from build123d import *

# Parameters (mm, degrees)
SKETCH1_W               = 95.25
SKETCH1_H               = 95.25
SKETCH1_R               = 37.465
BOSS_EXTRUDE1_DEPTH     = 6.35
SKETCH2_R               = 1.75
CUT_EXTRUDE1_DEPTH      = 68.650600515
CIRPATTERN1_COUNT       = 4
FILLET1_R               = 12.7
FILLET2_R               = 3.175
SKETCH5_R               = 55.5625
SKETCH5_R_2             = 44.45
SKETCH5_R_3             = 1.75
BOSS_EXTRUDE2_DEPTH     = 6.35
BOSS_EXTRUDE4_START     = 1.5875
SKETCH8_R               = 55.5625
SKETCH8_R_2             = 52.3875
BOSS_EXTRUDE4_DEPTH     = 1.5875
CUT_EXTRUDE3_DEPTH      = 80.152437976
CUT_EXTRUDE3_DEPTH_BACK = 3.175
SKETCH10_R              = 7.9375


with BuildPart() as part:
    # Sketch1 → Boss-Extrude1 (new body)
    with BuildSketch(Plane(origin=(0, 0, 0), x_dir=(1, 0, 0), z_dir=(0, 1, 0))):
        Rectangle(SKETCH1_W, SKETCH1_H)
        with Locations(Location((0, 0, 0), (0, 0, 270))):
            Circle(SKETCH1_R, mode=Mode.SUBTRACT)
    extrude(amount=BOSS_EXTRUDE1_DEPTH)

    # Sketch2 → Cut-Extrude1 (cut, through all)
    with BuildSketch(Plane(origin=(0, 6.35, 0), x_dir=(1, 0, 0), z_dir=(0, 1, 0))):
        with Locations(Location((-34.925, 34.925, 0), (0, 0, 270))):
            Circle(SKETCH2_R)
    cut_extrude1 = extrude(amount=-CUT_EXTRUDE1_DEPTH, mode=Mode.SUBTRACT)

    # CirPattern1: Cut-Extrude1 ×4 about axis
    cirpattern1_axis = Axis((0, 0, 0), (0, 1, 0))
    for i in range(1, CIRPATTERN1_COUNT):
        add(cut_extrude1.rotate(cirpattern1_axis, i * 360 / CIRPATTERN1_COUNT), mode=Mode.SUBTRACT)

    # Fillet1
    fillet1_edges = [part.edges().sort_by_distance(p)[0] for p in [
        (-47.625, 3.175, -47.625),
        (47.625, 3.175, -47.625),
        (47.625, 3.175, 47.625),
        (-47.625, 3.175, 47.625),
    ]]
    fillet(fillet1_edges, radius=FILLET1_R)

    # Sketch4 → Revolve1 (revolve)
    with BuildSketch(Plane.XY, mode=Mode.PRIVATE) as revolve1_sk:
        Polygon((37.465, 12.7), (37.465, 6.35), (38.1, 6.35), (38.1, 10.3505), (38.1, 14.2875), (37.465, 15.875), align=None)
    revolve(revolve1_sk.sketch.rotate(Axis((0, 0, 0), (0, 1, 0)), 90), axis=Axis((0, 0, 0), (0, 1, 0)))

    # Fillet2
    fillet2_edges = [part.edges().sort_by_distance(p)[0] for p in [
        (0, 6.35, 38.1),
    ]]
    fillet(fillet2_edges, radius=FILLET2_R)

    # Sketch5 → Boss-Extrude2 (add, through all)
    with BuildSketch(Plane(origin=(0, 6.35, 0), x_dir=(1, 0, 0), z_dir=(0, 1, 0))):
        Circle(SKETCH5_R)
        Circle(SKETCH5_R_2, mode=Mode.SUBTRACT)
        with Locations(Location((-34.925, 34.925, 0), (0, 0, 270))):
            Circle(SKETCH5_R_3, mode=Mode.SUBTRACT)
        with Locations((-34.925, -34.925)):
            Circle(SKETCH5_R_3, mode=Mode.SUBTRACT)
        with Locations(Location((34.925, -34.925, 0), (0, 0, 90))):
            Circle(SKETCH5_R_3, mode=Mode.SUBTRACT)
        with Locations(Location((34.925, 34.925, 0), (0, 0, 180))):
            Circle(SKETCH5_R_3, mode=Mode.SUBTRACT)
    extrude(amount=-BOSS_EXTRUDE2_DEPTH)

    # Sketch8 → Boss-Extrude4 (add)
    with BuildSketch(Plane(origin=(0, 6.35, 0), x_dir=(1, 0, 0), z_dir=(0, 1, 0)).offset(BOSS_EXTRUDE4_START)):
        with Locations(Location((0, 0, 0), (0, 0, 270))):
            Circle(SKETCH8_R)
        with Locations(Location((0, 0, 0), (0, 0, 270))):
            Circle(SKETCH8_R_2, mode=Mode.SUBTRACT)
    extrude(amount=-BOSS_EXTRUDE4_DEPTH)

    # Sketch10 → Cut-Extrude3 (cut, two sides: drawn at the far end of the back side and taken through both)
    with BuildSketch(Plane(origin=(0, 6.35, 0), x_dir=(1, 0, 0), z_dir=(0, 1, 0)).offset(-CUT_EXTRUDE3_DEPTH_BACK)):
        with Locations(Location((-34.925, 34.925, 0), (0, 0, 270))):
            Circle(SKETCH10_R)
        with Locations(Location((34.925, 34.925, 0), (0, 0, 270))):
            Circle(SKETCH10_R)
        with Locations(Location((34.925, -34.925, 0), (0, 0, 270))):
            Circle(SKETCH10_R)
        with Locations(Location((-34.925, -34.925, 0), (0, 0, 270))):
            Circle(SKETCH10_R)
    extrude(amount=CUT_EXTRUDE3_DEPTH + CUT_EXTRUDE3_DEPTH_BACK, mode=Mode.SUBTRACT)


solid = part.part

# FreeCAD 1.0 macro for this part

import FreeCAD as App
import Part
import Sketcher

V = App.Vector
Q = App.Units.Quantity


def edges_at(feature, points):
    """Names of the edges that pass closest to the given points."""
    edges = feature.Shape.Edges
    near = lambda p: min(range(len(edges)), key=lambda i: edges[i].distToShape(Part.Vertex(*p))[0])
    return sorted({f"Edge{near(p) + 1}" for p in points})

doc = App.newDocument("Part")
params = doc.addObject("Spreadsheet::Sheet", "Params")
for row, (alias, value) in enumerate([
    ("sketch1_diameter", "2.95 in"),
    ("sketch1_width", "3.75 in"),
    ("pad1_length", "0.25 in"),
    ("fillet_radius", "0.5 in"),
    ("sketch3_width", "0.025 in"),
    ("sketch3_height", "0.3125 in"),
    ("sketch3_height2", "0.375 in"),
    ("revolution_angle", "360 deg"),
    ("fillet2_radius", "0.125 in"),
    ("sketch4_diameter", "3.5 in"),
    ("sketch4_diameter2", "4.375 in"),
    ("pad2_length", "0.25 in"),
    ("sketch5_diameter", "4.375 in"),
    ("sketch5_diameter2", "4.125 in"),
    ("pad3_length", "0.0625 in"),
    ("sketch6_diameter", "0.625 in"),
    ("pocket2_length", "80.152438 mm"),
    ("pocket2_length2", "0.125 in"),
], start=1):
    params.set(f"A{row}", alias)
    params.set(f"B{row}", "=" + value)
    params.setAlias(f"B{row}", alias)

body = doc.addObject("PartDesign::Body", "Body")

# Sketch on XZ plane
sketch1 = body.newObject("Sketcher::SketchObject", "Sketch")
sketch1.AttachmentSupport = (doc.getObject("XZ_Plane"), [""])
sketch1.MapMode = "FlatFace"
sketch1.addGeometry(Part.LineSegment(V(-48, -48, 0), V(-48, 48, 0)), False)
sketch1.addGeometry(Part.LineSegment(V(-48, 48, 0), V(48, 48, 0)), False)
sketch1.addGeometry(Part.LineSegment(V(48, 48, 0), V(48, -48, 0)), False)
sketch1.addGeometry(Part.LineSegment(V(48, -48, 0), V(-48, -48, 0)), False)
sketch1.addGeometry(Part.Circle(V(0, 0, 0), V(0, 0, 1), 37), False)
sketch1.addConstraint(Sketcher.Constraint("Coincident", 0, 2, 1, 1))
sketch1.addConstraint(Sketcher.Constraint("Coincident", 1, 2, 2, 1))
sketch1.addConstraint(Sketcher.Constraint("Coincident", 2, 2, 3, 1))
sketch1.addConstraint(Sketcher.Constraint("Coincident", 3, 2, 0, 1))
sketch1.addConstraint(Sketcher.Constraint("Vertical", 0))
sketch1.addConstraint(Sketcher.Constraint("Horizontal", 1))
sketch1.addConstraint(Sketcher.Constraint("Vertical", 2))
sketch1.addConstraint(Sketcher.Constraint("Horizontal", 3))
sketch1.addConstraint(Sketcher.Constraint("Coincident", 4, 3, -1, 1))
sketch1.addConstraint(Sketcher.Constraint("Symmetric", 0, 2, 2, 2, -1, 1))
sketch1.addConstraint(Sketcher.Constraint("Equal", 3, 0))
sketch1.addConstraint(Sketcher.Constraint("Diameter", 4, Q("2.95 in")))
sketch1.addConstraint(Sketcher.Constraint("DistanceX", 1, 1, 1, 2, Q("3.75 in")))
sketch1.setExpression("Constraints[11]", "Params.sketch1_diameter")
sketch1.setExpression("Constraints[12]", "Params.sketch1_width")
pad1 = body.newObject("PartDesign::Pad", "Pad")
pad1.Profile = sketch1
pad1.setExpression("Length", "Params.pad1_length")
pad1.Reversed = True

# Sketch on XZ plane
sketch2 = body.newObject("Sketcher::SketchObject", "Sketch001")
sketch2.AttachmentSupport = (doc.getObject("XZ_Plane"), [""])
sketch2.MapMode = "FlatFace"
sketch2.AttachmentOffset = App.Placement(V(0, 0, -0.25 * 25.4), App.Rotation())
sketch2.addGeometry(Part.Circle(V(-34.9, -34.9, 0), V(0, 0, 1), 1.8), False)
sketch2.addConstraint(Sketcher.Constraint("Diameter", 0, Q("3.5 mm")))
sketch2.addConstraint(Sketcher.Constraint("DistanceX", 0, 3, -1, 1, Q("1.375 in")))
sketch2.addConstraint(Sketcher.Constraint("DistanceY", 0, 3, -1, 1, Q("1.375 in")))
pocket1 = body.newObject("PartDesign::Pocket", "Pocket")
pocket1.Profile = sketch2
pocket1.Type = "ThroughAll"
pocket1.Reversed = True
doc.recompute()

polarpattern = body.newObject("PartDesign::PolarPattern", "PolarPattern")
polarpattern.Originals = [pocket1]
polarpattern.Axis = (doc.getObject("Y_Axis"), [""])
polarpattern.Angle = 360
polarpattern.Occurrences = 4
body.Tip = polarpattern
doc.recompute()

fillet = body.newObject("PartDesign::Fillet", "Fillet")
fillet.Base = (polarpattern, edges_at(polarpattern, [
    (-47.625, 3.175, -47.625),
    (47.625, 3.175, -47.625),
    (47.625, 3.175, 47.625),
    (-47.625, 3.175, 47.625),
]))
fillet.setExpression("Radius", "Params.fillet_radius")

# Sketch on XY plane
sketch3 = body.newObject("Sketcher::SketchObject", "Sketch002")
sketch3.AttachmentSupport = (doc.getObject("XY_Plane"), [""])
sketch3.MapMode = "FlatFace"
sketch3.addGeometry(Part.LineSegment(V(37.5, 6.3, 0), V(38.1, 6.3, 0)), False)
sketch3.addGeometry(Part.LineSegment(V(38.1, 6.3, 0), V(38.1, 14.3, 0)), False)
sketch3.addGeometry(Part.LineSegment(V(38.1, 14.3, 0), V(37.5, 15.9, 0)), False)
sketch3.addGeometry(Part.LineSegment(V(37.5, 15.9, 0), V(37.5, 6.3, 0)), False)
sketch3.addConstraint(Sketcher.Constraint("Coincident", 0, 2, 1, 1))
sketch3.addConstraint(Sketcher.Constraint("Coincident", 1, 2, 2, 1))
sketch3.addConstraint(Sketcher.Constraint("Coincident", 2, 2, 3, 1))
sketch3.addConstraint(Sketcher.Constraint("Coincident", 3, 2, 0, 1))
sketch3.addConstraint(Sketcher.Constraint("Horizontal", 0))
sketch3.addConstraint(Sketcher.Constraint("Vertical", 1))
sketch3.addConstraint(Sketcher.Constraint("Vertical", 3))
sketch3.addConstraint(Sketcher.Constraint("DistanceX", -1, 1, 0, 2, Q("1.5 in")))
sketch3.addConstraint(Sketcher.Constraint("DistanceX", 0, 1, 0, 2, Q("0.025 in")))
sketch3.addConstraint(Sketcher.Constraint("DistanceY", 1, 1, 1, 2, Q("0.3125 in")))
sketch3.addConstraint(Sketcher.Constraint("DistanceY", 3, 2, 3, 1, Q("0.375 in")))
sketch3.addConstraint(Sketcher.Constraint("DistanceY", -1, 1, 0, 2, Q("0.25 in")))
sketch3.setExpression("Constraints[8]", "Params.sketch3_width")
sketch3.setExpression("Constraints[9]", "Params.sketch3_height")
sketch3.setExpression("Constraints[10]", "Params.sketch3_height2")
revolution = body.newObject("PartDesign::Revolution", "Revolution")
revolution.Profile = sketch3
revolution.ReferenceAxis = (sketch3, ["V_Axis"])
revolution.setExpression("Angle", "Params.revolution_angle")
doc.recompute()

fillet2 = body.newObject("PartDesign::Fillet", "Fillet001")
fillet2.Base = (revolution, edges_at(revolution, [(0, 6.35, 38.1)]))
fillet2.setExpression("Radius", "Params.fillet2_radius")

# Sketch on XZ plane
sketch4 = body.newObject("Sketcher::SketchObject", "Sketch003")
sketch4.AttachmentSupport = (doc.getObject("XZ_Plane"), [""])
sketch4.MapMode = "FlatFace"
sketch4.AttachmentOffset = App.Placement(V(0, 0, -0.25 * 25.4), App.Rotation())
sketch4.addGeometry(Part.Circle(V(0, 0, 0), V(0, 0, 1), 55.6), False)
sketch4.addGeometry(Part.Circle(V(-34.9, 34.9, 0), V(0, 0, 1), 1.8), False)
sketch4.addGeometry(Part.Circle(V(34.9, 34.9, 0), V(0, 0, 1), 1.8), False)
sketch4.addGeometry(Part.Circle(V(-34.9, -34.9, 0), V(0, 0, 1), 1.8), False)
sketch4.addGeometry(Part.Circle(V(0, 0, 0), V(0, 0, 1), 44.5), False)
sketch4.addGeometry(Part.Circle(V(34.9, -34.9, 0), V(0, 0, 1), 1.8), False)
sketch4.addConstraint(Sketcher.Constraint("Coincident", 0, 3, -1, 1))
sketch4.addConstraint(Sketcher.Constraint("Coincident", 4, 3, -1, 1))
sketch4.addConstraint(Sketcher.Constraint("Equal", 1, 2))
sketch4.addConstraint(Sketcher.Constraint("Equal", 2, 3))
sketch4.addConstraint(Sketcher.Constraint("Equal", 3, 5))
sketch4.addConstraint(Sketcher.Constraint("Symmetric", 2, 3, 3, 3, -1, 1))
sketch4.addConstraint(Sketcher.Constraint("Symmetric", 1, 3, 5, 3, -1, 1))
sketch4.addConstraint(Sketcher.Constraint("Symmetric", 1, 3, 2, 3, -2))
sketch4.addConstraint(Sketcher.Constraint("Diameter", 4, Q("3.5 in")))
sketch4.addConstraint(Sketcher.Constraint("Diameter", 0, Q("4.375 in")))
sketch4.addConstraint(Sketcher.Constraint("Diameter", 1, Q("3.5 mm")))
sketch4.addConstraint(Sketcher.Constraint("DistanceX", 1, 3, 2, 3, Q("2.75 in")))
sketch4.addConstraint(Sketcher.Constraint("DistanceY", 3, 3, 1, 3, Q("2.75 in")))
sketch4.setExpression("Constraints[8]", "Params.sketch4_diameter")
sketch4.setExpression("Constraints[9]", "Params.sketch4_diameter2")
pad2 = body.newObject("PartDesign::Pad", "Pad001")
pad2.Profile = sketch4
pad2.setExpression("Length", "Params.pad2_length")

# Sketch on XZ plane
sketch5 = body.newObject("Sketcher::SketchObject", "Sketch004")
sketch5.AttachmentSupport = (doc.getObject("XZ_Plane"), [""])
sketch5.MapMode = "FlatFace"
sketch5.AttachmentOffset = App.Placement(V(0, 0, -0.3125 * 25.4), App.Rotation())
sketch5.addGeometry(Part.Circle(V(0, 0, 0), V(0, 0, 1), 56), False)
sketch5.addGeometry(Part.Circle(V(0, 0, 0), V(0, 0, 1), 52), False)
sketch5.addConstraint(Sketcher.Constraint("Coincident", 0, 3, -1, 1))
sketch5.addConstraint(Sketcher.Constraint("Coincident", 1, 3, -1, 1))
sketch5.addConstraint(Sketcher.Constraint("Diameter", 0, Q("4.375 in")))
sketch5.addConstraint(Sketcher.Constraint("Diameter", 1, Q("4.125 in")))
sketch5.setExpression("Constraints[2]", "Params.sketch5_diameter")
sketch5.setExpression("Constraints[3]", "Params.sketch5_diameter2")
pad3 = body.newObject("PartDesign::Pad", "Pad002")
pad3.Profile = sketch5
pad3.setExpression("Length", "Params.pad3_length")

# Sketch on XZ plane
sketch6 = body.newObject("Sketcher::SketchObject", "Sketch005")
sketch6.AttachmentSupport = (doc.getObject("XZ_Plane"), [""])
sketch6.MapMode = "FlatFace"
sketch6.AttachmentOffset = App.Placement(V(0, 0, -0.25 * 25.4), App.Rotation())
sketch6.addGeometry(Part.Circle(V(-35, -35, 0), V(0, 0, 1), 8), False)
sketch6.addGeometry(Part.Circle(V(35, -35, 0), V(0, 0, 1), 8), False)
sketch6.addGeometry(Part.Circle(V(35, 35, 0), V(0, 0, 1), 8), False)
sketch6.addGeometry(Part.Circle(V(-35, 35, 0), V(0, 0, 1), 8), False)
sketch6.addConstraint(Sketcher.Constraint("Equal", 0, 1))
sketch6.addConstraint(Sketcher.Constraint("Equal", 1, 2))
sketch6.addConstraint(Sketcher.Constraint("Equal", 2, 3))
sketch6.addConstraint(Sketcher.Constraint("Symmetric", 0, 3, 2, 3, -1, 1))
sketch6.addConstraint(Sketcher.Constraint("Symmetric", 1, 3, 3, 3, -1, 1))
sketch6.addConstraint(Sketcher.Constraint("Symmetric", 0, 3, 1, 3, -2))
sketch6.addConstraint(Sketcher.Constraint("Diameter", 0, Q("0.625 in")))
sketch6.addConstraint(Sketcher.Constraint("DistanceX", 0, 3, 1, 3, Q("2.75 in")))
sketch6.addConstraint(Sketcher.Constraint("DistanceY", 1, 3, 2, 3, Q("2.75 in")))
sketch6.setExpression("Constraints[6]", "Params.sketch6_diameter")
pocket2 = body.newObject("PartDesign::Pocket", "Pocket001")
pocket2.Profile = sketch6
pocket2.Type = "TwoLengths"
pocket2.setExpression("Length", "Params.pocket2_length")
pocket2.setExpression("Length2", "Params.pocket2_length2")

doc.recompute()
